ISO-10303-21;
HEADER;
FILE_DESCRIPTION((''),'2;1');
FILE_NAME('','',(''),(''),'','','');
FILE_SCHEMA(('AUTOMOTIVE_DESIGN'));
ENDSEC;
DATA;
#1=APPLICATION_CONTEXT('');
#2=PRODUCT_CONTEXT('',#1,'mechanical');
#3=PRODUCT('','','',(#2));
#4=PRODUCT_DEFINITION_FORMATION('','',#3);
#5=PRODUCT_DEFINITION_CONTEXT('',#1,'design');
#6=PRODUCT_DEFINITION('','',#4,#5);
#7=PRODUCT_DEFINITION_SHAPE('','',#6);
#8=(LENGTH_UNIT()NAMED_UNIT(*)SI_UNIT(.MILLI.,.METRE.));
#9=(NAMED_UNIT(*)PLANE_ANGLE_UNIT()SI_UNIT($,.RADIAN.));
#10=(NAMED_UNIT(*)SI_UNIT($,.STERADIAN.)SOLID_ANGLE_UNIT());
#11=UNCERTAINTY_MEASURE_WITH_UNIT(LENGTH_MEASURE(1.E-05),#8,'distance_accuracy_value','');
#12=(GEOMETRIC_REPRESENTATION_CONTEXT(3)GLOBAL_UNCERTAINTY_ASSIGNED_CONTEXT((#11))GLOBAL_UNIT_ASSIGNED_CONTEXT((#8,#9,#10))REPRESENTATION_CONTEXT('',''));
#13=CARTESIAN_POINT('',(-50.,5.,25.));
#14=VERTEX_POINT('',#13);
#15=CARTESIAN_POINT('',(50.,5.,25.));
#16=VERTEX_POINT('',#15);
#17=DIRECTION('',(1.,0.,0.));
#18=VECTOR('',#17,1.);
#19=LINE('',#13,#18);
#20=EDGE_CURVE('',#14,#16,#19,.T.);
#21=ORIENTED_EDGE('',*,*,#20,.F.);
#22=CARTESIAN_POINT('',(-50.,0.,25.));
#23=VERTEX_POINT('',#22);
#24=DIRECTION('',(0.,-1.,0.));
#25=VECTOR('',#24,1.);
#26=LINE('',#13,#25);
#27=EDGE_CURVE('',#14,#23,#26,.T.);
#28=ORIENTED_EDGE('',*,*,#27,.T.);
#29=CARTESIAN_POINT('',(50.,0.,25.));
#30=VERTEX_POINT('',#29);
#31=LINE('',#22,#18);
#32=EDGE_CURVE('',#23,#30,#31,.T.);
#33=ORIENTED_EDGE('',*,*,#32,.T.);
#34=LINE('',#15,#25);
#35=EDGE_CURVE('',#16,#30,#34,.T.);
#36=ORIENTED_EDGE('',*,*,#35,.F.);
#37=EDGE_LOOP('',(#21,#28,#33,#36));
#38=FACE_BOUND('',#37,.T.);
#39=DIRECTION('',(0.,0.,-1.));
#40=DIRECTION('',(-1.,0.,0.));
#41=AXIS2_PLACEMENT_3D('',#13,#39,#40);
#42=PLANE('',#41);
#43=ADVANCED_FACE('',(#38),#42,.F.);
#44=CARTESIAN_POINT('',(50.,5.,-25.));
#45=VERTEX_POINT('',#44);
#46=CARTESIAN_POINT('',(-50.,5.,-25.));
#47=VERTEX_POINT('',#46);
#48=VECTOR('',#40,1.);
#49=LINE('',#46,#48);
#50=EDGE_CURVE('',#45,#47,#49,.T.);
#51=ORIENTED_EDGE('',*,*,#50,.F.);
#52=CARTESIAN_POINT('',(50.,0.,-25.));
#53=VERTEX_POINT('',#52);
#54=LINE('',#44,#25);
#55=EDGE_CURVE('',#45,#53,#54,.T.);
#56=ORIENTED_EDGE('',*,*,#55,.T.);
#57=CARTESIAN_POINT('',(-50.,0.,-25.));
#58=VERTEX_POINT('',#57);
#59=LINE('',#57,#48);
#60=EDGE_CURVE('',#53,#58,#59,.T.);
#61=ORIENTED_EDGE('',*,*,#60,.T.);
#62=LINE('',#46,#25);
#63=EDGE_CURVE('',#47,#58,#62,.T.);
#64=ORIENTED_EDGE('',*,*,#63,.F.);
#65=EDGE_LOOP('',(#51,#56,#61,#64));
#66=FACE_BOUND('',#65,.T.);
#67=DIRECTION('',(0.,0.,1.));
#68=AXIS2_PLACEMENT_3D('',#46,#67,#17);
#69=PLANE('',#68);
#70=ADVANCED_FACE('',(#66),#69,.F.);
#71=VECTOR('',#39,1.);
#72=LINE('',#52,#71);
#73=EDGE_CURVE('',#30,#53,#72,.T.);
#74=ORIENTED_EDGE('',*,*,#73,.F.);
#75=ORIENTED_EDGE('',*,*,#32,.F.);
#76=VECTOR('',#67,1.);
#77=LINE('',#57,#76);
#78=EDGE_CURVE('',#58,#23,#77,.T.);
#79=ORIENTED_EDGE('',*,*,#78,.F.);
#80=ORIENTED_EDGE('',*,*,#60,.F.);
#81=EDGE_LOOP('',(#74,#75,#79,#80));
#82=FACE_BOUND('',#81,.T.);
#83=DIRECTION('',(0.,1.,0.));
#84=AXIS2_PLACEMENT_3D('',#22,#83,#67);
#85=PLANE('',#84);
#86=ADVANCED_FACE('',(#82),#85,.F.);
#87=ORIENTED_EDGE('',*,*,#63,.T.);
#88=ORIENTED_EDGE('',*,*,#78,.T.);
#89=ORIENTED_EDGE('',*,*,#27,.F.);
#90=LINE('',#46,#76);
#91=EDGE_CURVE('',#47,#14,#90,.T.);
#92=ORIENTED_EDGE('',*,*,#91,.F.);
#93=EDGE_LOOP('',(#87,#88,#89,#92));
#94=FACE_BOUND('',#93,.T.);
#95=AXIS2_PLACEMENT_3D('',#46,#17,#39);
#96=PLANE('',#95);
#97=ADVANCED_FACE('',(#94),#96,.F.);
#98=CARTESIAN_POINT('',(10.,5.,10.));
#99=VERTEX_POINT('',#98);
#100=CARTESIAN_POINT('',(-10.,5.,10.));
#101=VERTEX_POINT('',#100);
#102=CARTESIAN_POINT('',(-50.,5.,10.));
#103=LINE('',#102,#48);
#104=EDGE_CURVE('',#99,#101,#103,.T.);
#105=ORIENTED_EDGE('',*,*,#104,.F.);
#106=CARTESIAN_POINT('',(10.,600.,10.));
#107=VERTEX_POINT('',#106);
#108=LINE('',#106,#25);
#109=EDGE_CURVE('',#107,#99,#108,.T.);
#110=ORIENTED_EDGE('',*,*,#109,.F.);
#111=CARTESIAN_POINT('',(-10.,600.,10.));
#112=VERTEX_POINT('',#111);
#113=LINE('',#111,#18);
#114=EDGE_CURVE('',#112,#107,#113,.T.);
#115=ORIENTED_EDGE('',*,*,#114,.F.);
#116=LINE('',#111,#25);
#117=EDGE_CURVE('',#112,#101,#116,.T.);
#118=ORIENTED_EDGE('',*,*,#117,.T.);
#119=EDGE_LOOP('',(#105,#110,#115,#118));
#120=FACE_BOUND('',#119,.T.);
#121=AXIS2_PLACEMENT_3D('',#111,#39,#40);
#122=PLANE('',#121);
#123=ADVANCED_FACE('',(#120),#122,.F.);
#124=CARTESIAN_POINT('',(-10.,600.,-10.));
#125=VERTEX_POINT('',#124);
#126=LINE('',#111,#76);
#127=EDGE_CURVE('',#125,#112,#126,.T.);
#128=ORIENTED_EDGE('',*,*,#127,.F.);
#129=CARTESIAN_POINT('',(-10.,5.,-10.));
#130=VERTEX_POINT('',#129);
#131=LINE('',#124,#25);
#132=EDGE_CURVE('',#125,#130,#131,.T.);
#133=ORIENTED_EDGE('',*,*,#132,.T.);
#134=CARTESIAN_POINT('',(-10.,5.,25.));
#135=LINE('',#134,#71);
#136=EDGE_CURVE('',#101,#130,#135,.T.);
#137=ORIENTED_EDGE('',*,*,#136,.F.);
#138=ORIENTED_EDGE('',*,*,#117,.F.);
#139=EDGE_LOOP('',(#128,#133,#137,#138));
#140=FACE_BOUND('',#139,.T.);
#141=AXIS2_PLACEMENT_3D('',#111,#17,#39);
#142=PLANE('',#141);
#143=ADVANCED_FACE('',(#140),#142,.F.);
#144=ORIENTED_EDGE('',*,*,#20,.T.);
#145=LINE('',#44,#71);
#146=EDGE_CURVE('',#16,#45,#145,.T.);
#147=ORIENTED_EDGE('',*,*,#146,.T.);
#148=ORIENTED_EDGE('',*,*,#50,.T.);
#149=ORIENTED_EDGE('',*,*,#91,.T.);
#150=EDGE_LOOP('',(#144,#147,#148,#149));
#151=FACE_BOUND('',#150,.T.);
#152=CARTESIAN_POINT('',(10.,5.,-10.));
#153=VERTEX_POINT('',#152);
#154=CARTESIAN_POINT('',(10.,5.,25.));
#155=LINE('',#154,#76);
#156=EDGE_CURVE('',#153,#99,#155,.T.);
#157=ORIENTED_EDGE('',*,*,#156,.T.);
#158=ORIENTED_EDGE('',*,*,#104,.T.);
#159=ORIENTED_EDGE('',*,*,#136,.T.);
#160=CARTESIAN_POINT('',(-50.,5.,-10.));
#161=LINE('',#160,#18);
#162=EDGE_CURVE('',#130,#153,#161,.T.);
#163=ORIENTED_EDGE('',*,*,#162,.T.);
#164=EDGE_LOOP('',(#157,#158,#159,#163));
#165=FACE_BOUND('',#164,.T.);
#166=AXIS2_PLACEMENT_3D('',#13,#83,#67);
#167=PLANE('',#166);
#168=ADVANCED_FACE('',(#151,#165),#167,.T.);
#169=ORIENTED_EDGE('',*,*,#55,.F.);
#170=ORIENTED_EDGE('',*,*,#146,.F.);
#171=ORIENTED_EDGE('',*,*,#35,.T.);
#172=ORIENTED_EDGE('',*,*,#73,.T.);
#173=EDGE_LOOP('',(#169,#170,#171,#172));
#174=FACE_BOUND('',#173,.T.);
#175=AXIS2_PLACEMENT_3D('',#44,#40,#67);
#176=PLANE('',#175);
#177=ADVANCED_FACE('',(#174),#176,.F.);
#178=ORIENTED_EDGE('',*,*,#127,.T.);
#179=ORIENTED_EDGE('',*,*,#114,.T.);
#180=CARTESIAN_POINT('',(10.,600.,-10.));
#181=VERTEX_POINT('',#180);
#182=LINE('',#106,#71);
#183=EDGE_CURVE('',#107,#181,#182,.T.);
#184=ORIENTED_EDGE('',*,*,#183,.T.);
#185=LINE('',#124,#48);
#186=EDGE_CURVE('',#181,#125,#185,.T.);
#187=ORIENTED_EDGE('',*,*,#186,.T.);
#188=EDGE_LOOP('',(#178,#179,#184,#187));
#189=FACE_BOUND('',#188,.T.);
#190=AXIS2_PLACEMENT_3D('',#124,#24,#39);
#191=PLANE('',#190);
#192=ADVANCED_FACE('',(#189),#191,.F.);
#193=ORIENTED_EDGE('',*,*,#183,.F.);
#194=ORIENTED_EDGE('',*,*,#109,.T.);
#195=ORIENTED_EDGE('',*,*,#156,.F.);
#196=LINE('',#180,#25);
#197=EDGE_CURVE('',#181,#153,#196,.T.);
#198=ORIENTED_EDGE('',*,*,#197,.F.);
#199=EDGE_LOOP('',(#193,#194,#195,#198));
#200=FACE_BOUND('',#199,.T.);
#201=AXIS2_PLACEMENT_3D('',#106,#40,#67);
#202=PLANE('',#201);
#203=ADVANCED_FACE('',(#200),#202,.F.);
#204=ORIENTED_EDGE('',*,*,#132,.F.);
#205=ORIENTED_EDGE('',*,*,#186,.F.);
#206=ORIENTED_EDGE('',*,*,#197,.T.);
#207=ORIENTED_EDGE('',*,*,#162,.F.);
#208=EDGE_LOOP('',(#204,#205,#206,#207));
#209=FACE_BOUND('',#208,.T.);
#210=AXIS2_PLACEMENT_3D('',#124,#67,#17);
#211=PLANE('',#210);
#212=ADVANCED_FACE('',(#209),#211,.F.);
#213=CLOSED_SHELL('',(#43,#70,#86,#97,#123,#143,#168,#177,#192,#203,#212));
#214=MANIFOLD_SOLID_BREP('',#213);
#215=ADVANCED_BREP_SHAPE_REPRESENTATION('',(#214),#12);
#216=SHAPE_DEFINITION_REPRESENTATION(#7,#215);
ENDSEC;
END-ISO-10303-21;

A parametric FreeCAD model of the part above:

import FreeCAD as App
import Part
import Sketcher
from FreeCAD import Vector
Q = App.Units.Quantity

doc = App.newDocument("Part")
body = doc.addObject("PartDesign::Body", "Body")

# Sketch on XZ plane
sketch1 = body.newObject("Sketcher::SketchObject", "Sketch")
sketch1.AttachmentSupport = (doc.getObject("XZ_Plane"), [""])
sketch1.MapMode = "FlatFace"
sketch1.addGeometry([
    Part.LineSegment(Vector(-50, -25, 0), Vector(-50, 25, 0)),
    Part.LineSegment(Vector(-50, 25, 0), Vector(50, 25, 0)),
    Part.LineSegment(Vector(50, 25, 0), Vector(50, -25, 0)),
    Part.LineSegment(Vector(50, -25, 0), Vector(-50, -25, 0)),
], False)
sketch1.addConstraint([
    Sketcher.Constraint("Coincident", 0, 2, 1, 1),
    Sketcher.Constraint("Coincident", 1, 2, 2, 1),
    Sketcher.Constraint("Coincident", 2, 2, 3, 1),
    Sketcher.Constraint("Coincident", 3, 2, 0, 1),
    Sketcher.Constraint("Vertical", 0),
    Sketcher.Constraint("Horizontal", 1),
    Sketcher.Constraint("Vertical", 2),
    Sketcher.Constraint("Horizontal", 3),
    Sketcher.Constraint("Symmetric", 0, 2, 2, 2, -1, 1),
    Sketcher.Constraint("DistanceX", 1, 1, 1, 2, Q("100 mm")),
    Sketcher.Constraint("DistanceY", 0, 1, 0, 2, Q("50 mm")),
])
pad1 = body.newObject("PartDesign::Pad", "Pad")
pad1.Profile = sketch1
pad1.Length = 5
pad1.Reversed = True

# Sketch on XZ plane
sketch2 = body.newObject("Sketcher::SketchObject", "Sketch001")
sketch2.AttachmentSupport = (doc.getObject("XZ_Plane"), [""])
sketch2.MapMode = "FlatFace"
sketch2.addGeometry([
    Part.LineSegment(Vector(-10, -10, 0), Vector(-10, 10, 0)),
    Part.LineSegment(Vector(-10, 10, 0), Vector(10, 10, 0)),
    Part.LineSegment(Vector(10, 10, 0), Vector(10, -10, 0)),
    Part.LineSegment(Vector(10, -10, 0), Vector(-10, -10, 0)),
], False)
sketch2.addConstraint([
    Sketcher.Constraint("Coincident", 0, 2, 1, 1),
    Sketcher.Constraint("Coincident", 1, 2, 2, 1),
    Sketcher.Constraint("Coincident", 2, 2, 3, 1),
    Sketcher.Constraint("Coincident", 3, 2, 0, 1),
    Sketcher.Constraint("Vertical", 0),
    Sketcher.Constraint("Horizontal", 1),
    Sketcher.Constraint("Vertical", 2),
    Sketcher.Constraint("Horizontal", 3),
    Sketcher.Constraint("Symmetric", 0, 2, 2, 2, -1, 1),
    Sketcher.Constraint("Equal", 3, 0),
    Sketcher.Constraint("DistanceX", 1, 1, 1, 2, Q("20 mm")),
])
pad2 = body.newObject("PartDesign::Pad", "Pad001")
pad2.Profile = sketch2
pad2.Length = 600
pad2.Reversed = True

doc.recompute()
